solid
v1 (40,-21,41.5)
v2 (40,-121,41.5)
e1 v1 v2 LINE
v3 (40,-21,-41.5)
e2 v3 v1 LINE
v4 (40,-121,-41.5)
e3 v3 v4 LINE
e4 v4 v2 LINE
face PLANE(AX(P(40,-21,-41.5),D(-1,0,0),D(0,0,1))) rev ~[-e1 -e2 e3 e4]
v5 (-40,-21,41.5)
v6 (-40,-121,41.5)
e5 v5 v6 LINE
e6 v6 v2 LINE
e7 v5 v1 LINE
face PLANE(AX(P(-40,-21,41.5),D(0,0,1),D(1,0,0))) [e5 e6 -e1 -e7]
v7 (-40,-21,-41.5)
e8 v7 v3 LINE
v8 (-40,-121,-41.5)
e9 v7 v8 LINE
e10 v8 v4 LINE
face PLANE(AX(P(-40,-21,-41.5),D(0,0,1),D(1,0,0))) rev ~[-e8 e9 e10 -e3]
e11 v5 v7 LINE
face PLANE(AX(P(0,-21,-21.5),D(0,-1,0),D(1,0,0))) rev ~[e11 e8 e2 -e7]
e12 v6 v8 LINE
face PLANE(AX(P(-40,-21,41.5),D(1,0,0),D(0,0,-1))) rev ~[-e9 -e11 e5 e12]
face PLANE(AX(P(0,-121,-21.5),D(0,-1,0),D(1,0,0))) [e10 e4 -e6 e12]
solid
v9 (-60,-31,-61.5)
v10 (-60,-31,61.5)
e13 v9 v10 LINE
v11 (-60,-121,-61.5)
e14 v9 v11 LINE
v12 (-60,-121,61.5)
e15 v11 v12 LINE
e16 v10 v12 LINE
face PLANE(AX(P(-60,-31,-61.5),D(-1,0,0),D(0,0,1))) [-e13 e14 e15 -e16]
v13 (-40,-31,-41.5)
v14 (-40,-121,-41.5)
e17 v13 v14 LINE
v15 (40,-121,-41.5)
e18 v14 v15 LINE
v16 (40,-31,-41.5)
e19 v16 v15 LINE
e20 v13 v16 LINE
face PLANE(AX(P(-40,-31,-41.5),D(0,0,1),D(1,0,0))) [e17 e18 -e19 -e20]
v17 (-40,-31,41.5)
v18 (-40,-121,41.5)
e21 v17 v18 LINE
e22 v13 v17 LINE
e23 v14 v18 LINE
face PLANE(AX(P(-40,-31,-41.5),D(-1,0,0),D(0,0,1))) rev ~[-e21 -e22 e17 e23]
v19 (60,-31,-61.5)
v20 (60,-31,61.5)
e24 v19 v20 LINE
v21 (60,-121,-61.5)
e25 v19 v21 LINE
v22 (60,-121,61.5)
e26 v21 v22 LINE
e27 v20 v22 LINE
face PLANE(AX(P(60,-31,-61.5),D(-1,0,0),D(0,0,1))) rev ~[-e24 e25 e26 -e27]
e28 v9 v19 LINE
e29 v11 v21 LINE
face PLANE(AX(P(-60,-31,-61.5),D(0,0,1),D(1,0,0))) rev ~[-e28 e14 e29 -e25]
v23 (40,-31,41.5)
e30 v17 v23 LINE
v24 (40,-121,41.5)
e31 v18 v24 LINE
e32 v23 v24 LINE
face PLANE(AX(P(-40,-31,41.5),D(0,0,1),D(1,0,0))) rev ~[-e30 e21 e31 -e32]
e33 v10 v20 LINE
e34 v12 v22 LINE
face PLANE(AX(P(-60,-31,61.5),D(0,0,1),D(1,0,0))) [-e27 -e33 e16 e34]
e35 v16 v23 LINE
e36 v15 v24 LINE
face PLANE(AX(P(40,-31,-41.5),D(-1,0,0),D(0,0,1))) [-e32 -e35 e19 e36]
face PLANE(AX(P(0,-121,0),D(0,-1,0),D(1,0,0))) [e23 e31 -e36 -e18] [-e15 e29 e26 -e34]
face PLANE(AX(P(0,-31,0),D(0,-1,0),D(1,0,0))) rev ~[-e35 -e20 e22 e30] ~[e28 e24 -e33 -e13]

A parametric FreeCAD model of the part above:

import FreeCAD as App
import Part
import Sketcher
from FreeCAD import Vector
Q = App.Units.Quantity

doc = App.newDocument("Part")
params = doc.addObject("Spreadsheet::Sheet", "Params")
for row, (alias, value) in enumerate([
    ("sketch1_width", "80 mm"),
    ("sketch1_height", "83 mm"),
    ("pad1_length", "100 mm"),
    ("sketch2_width", "120 mm"),
    ("sketch2_width2", "80 mm"),
    ("sketch2_height", "123 mm"),
    ("sketch2_height2", "83 mm"),
    ("pad2_length", "90 mm"),
], start=1):
    params.set(f"A{row}", alias)
    params.set(f"B{row}", "=" + value)
    params.setAlias(f"B{row}", alias)

body = doc.addObject("PartDesign::Body", "Body")

# Sketch on XZ plane
sketch1 = body.newObject("Sketcher::SketchObject", "Sketch")
sketch1.AttachmentSupport = (doc.getObject("XZ_Plane"), [""])
sketch1.MapMode = "FlatFace"
sketch1.AttachmentOffset = App.Placement(Vector(0, 0, 21), App.Rotation())
sketch1.addGeometry([
    Part.LineSegment(Vector(-40, -41.5, 0), Vector(40, -41.5, 0)),
    Part.LineSegment(Vector(40, -41.5, 0), Vector(40, 41.5, 0)),
    Part.LineSegment(Vector(40, 41.5, 0), Vector(-40, 41.5, 0)),
    Part.LineSegment(Vector(-40, 41.5, 0), Vector(-40, -41.5, 0)),
], False)
sketch1.addConstraint([
    Sketcher.Constraint("Coincident", 0, 2, 1, 1),
    Sketcher.Constraint("Coincident", 1, 2, 2, 1),
    Sketcher.Constraint("Coincident", 2, 2, 3, 1),
    Sketcher.Constraint("Coincident", 3, 2, 0, 1),
    Sketcher.Constraint("Horizontal", 0),
    Sketcher.Constraint("Vertical", 1),
    Sketcher.Constraint("Horizontal", 2),
    Sketcher.Constraint("Vertical", 3),
    Sketcher.Constraint("Symmetric", 0, 2, 2, 2, -1, 1),
    Sketcher.Constraint("DistanceX", 0, 1, 0, 2, Q("80 mm")),
    Sketcher.Constraint("DistanceY", 1, 1, 1, 2, Q("83 mm")),
])
sketch1.setExpression("Constraints[9]", "Params.sketch1_width")
sketch1.setExpression("Constraints[10]", "Params.sketch1_height")
pad1 = body.newObject("PartDesign::Pad", "Pad")
pad1.Profile = sketch1
pad1.setExpression("Length", "Params.pad1_length")
body2 = doc.addObject("PartDesign::Body", "Body001")

# Sketch on XZ plane
sketch2 = body2.newObject("Sketcher::SketchObject", "Sketch001")
sketch2.AttachmentSupport = (doc.getObject("XZ_Plane001"), [""])
sketch2.MapMode = "FlatFace"
sketch2.AttachmentOffset = App.Placement(Vector(0, 0, 31), App.Rotation())
sketch2.addGeometry([
    Part.LineSegment(Vector(-60, 61.5, 0), Vector(-60, -61.5, 0)),  # 0
    Part.LineSegment(Vector(-60, -61.5, 0), Vector(60, -61.5, 0)),  # 1
    Part.LineSegment(Vector(60, -61.5, 0), Vector(60, 61.5, 0)),  # 2
    Part.LineSegment(Vector(60, 61.5, 0), Vector(-60, 61.5, 0)),  # 3
    Part.LineSegment(Vector(40, -41.5, 0), Vector(-40, -41.5, 0)),  # 4
    Part.LineSegment(Vector(-40, -41.5, 0), Vector(-40, 41.5, 0)),  # 5
    Part.LineSegment(Vector(-40, 41.5, 0), Vector(40, 41.5, 0)),  # 6
    Part.LineSegment(Vector(40, 41.5, 0), Vector(40, -41.5, 0)),  # 7
], False)
sketch2.addConstraint([
    Sketcher.Constraint("Coincident", 0, 2, 1, 1),
    Sketcher.Constraint("Coincident", 1, 2, 2, 1),
    Sketcher.Constraint("Coincident", 2, 2, 3, 1),
    Sketcher.Constraint("Coincident", 3, 2, 0, 1),
    Sketcher.Constraint("Coincident", 4, 2, 5, 1),
    Sketcher.Constraint("Coincident", 5, 2, 6, 1),
    Sketcher.Constraint("Coincident", 6, 2, 7, 1),
    Sketcher.Constraint("Coincident", 7, 2, 4, 1),
    Sketcher.Constraint("Vertical", 0),
    Sketcher.Constraint("Horizontal", 1),
    Sketcher.Constraint("Vertical", 2),
    Sketcher.Constraint("Horizontal", 3),
    Sketcher.Constraint("Horizontal", 4),
    Sketcher.Constraint("Vertical", 5),
    Sketcher.Constraint("Horizontal", 6),
    Sketcher.Constraint("Vertical", 7),
    Sketcher.Constraint("Symmetric", 0, 2, 2, 2, -1, 1),
    Sketcher.Constraint("Symmetric", 4, 2, 6, 2, -1, 1),
    Sketcher.Constraint("DistanceX", 1, 1, 1, 2, Q("120 mm")),
    Sketcher.Constraint("DistanceX", 4, 2, 4, 1, Q("80 mm")),
    Sketcher.Constraint("DistanceY", 0, 2, 0, 1, Q("123 mm")),
    Sketcher.Constraint("DistanceY", 5, 1, 5, 2, Q("83 mm")),
])
sketch2.setExpression("Constraints[18]", "Params.sketch2_width")
sketch2.setExpression("Constraints[19]", "Params.sketch2_width2")
sketch2.setExpression("Constraints[20]", "Params.sketch2_height")
sketch2.setExpression("Constraints[21]", "Params.sketch2_height2")
pad2 = body2.newObject("PartDesign::Pad", "Pad001")
pad2.Profile = sketch2
pad2.setExpression("Length", "Params.pad2_length")

doc.recompute()
